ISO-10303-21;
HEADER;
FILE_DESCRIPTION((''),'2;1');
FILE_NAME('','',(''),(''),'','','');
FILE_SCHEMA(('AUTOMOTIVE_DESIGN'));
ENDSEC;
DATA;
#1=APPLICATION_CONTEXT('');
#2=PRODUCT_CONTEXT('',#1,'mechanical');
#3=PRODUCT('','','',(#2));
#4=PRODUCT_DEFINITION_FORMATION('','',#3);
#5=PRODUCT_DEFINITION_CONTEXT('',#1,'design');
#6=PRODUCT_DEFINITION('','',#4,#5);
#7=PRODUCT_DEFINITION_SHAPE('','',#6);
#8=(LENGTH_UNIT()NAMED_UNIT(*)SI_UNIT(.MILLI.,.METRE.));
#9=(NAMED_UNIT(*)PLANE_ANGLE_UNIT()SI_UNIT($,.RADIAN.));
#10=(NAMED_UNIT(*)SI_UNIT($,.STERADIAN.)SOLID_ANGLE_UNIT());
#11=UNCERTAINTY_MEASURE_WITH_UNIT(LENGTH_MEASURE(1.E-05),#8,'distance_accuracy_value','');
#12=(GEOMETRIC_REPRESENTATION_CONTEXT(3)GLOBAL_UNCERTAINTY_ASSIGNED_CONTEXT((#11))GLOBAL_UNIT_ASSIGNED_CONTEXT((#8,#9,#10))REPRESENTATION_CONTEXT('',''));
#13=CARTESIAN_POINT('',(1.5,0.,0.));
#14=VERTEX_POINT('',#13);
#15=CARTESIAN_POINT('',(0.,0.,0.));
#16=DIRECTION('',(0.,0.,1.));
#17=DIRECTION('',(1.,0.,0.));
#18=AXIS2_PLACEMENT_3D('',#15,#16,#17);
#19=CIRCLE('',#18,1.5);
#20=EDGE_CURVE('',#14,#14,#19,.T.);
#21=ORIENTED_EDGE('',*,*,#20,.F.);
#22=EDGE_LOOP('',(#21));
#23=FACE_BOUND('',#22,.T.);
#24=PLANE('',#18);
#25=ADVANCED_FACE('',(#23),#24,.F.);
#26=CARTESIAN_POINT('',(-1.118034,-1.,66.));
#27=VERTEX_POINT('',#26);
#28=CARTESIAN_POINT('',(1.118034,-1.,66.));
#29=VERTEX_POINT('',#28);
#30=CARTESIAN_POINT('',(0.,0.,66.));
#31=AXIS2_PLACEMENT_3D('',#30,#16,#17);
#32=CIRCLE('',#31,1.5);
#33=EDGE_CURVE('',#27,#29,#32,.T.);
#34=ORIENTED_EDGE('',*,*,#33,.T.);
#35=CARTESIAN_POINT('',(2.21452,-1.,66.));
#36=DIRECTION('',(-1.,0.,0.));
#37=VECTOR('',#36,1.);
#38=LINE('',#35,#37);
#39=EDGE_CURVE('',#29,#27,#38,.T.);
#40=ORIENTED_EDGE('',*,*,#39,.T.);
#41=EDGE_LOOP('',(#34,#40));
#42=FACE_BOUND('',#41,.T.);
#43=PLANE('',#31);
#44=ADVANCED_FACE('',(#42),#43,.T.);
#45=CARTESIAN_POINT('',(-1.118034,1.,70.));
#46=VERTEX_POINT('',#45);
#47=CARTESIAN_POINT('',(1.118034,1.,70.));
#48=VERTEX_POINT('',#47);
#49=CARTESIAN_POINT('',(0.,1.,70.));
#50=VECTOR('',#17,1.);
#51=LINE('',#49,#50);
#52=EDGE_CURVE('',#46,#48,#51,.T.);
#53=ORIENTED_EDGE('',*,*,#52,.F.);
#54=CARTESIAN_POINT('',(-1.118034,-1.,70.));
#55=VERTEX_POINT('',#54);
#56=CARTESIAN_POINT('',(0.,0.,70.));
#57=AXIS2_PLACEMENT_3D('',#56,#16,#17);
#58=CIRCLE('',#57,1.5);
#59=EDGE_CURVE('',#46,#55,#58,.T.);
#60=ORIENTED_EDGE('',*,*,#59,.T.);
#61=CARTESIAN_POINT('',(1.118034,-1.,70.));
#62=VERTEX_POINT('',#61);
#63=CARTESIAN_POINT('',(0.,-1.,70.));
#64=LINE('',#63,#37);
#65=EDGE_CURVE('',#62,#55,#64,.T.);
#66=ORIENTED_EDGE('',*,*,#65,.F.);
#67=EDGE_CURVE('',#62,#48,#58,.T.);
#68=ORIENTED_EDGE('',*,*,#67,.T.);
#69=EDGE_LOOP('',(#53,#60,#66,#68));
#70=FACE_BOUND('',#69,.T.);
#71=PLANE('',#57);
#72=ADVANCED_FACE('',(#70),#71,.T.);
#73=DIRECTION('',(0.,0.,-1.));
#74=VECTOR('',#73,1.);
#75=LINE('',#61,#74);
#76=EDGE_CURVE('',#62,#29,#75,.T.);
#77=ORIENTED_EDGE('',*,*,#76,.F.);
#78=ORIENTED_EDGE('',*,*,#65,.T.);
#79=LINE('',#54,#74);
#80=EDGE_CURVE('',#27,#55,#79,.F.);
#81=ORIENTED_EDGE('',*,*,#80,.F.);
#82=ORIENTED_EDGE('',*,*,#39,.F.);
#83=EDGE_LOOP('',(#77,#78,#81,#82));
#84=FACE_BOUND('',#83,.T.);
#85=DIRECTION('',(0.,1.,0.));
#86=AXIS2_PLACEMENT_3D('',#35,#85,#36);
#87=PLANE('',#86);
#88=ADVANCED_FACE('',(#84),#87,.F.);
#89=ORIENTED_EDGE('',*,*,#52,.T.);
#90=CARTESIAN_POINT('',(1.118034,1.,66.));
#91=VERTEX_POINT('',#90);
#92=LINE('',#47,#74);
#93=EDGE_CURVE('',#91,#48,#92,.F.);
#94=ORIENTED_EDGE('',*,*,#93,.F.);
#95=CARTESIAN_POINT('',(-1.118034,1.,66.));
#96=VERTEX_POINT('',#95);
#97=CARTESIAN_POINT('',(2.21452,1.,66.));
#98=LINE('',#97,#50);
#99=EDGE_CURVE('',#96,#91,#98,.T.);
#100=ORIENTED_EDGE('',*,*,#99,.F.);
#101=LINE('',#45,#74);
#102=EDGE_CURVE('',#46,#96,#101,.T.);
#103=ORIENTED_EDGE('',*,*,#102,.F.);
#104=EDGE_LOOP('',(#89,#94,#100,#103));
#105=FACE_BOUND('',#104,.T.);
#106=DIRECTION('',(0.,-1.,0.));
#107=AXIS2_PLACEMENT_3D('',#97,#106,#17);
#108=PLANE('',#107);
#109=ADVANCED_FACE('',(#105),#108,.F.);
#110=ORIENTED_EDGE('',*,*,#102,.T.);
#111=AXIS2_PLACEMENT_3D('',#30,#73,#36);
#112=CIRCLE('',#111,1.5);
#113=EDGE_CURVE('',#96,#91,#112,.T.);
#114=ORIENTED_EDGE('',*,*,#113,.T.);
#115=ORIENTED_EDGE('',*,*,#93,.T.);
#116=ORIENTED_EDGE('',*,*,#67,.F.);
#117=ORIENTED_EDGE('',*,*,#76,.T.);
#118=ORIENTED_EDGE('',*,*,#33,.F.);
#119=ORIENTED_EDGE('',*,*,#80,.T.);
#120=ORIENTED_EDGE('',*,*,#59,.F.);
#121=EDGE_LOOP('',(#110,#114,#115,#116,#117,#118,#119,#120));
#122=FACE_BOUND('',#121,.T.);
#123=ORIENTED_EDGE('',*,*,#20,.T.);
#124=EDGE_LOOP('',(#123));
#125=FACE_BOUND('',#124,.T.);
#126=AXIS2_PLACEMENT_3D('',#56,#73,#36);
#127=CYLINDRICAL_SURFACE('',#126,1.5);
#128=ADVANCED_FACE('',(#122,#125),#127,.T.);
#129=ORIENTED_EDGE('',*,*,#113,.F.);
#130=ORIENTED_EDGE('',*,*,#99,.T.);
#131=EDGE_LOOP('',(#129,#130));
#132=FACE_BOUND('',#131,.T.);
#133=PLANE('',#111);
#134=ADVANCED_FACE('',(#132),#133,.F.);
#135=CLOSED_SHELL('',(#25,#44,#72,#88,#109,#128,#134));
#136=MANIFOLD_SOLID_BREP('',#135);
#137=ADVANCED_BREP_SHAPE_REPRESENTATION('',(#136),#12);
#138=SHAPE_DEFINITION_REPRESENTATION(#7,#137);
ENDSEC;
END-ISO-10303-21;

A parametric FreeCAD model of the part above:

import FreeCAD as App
import Part
import Sketcher
Q = App.Units.Quantity

doc = App.newDocument("Part")
body = doc.addObject("PartDesign::Body", "Body")

# Sketch on XY plane
sketch1 = body.newObject("Sketcher::SketchObject", "Sketch")
sketch1.AttachmentSupport = (doc.getObject("XY_Plane"), [""])
sketch1.MapMode = "FlatFace"
sketch1.addGeometry(Part.Circle(App.Vector(0, 0, 0), App.Vector(0, 0, 1), 1.5), False)
sketch1.addConstraint([
    Sketcher.Constraint("Coincident", 0, 3, -1, 1),
    Sketcher.Constraint("Diameter", 0, Q("3 mm")),
])
pad1 = body.newObject("PartDesign::Pad", "Pad")
pad1.Profile = sketch1
pad1.Length = 70

# Sketch on XY plane
sketch2 = body.newObject("Sketcher::SketchObject", "Sketch001")
sketch2.AttachmentSupport = (doc.getObject("XY_Plane"), [""])
sketch2.MapMode = "FlatFace"
sketch2.AttachmentOffset = App.Placement(App.Vector(0, 0, 70), App.Rotation())
sketch2.addGeometry([
    Part.LineSegment(App.Vector(-1.8, -1, 0), App.Vector(-1.8, -2, 0)),  # 0
    Part.LineSegment(App.Vector(-1.8, -2, 0), App.Vector(2.2, -2, 0)),  # 1
    Part.LineSegment(App.Vector(2.2, -2, 0), App.Vector(2.2, -1, 0)),  # 2
    Part.LineSegment(App.Vector(2.2, -1, 0), App.Vector(-1.8, -1, 0)),  # 3
    Part.LineSegment(App.Vector(-1.8, 2, 0), App.Vector(-1.8, 1, 0)),  # 4
    Part.LineSegment(App.Vector(-1.8, 1, 0), App.Vector(2.2, 1, 0)),  # 5
    Part.LineSegment(App.Vector(2.2, 1, 0), App.Vector(2.2, 2, 0)),  # 6
    Part.LineSegment(App.Vector(2.2, 2, 0), App.Vector(-1.8, 2, 0)),  # 7
], False)
sketch2.addConstraint([
    Sketcher.Constraint("Coincident", 0, 2, 1, 1),
    Sketcher.Constraint("Coincident", 1, 2, 2, 1),
    Sketcher.Constraint("Coincident", 2, 2, 3, 1),
    Sketcher.Constraint("Coincident", 3, 2, 0, 1),
    Sketcher.Constraint("Coincident", 4, 2, 5, 1),
    Sketcher.Constraint("Coincident", 5, 2, 6, 1),
    Sketcher.Constraint("Coincident", 6, 2, 7, 1),
    Sketcher.Constraint("Coincident", 7, 2, 4, 1),
    Sketcher.Constraint("Vertical", 0),
    Sketcher.Constraint("Horizontal", 1),
    Sketcher.Constraint("Vertical", 2),
    Sketcher.Constraint("Horizontal", 3),
    Sketcher.Constraint("Vertical", 4),
    Sketcher.Constraint("Horizontal", 5),
    Sketcher.Constraint("Vertical", 6),
    Sketcher.Constraint("Horizontal", 7),
    Sketcher.Constraint("Symmetric", 3, 2, 4, 2, -1),
    Sketcher.Constraint("Symmetric", 1, 2, 6, 2, -1),
    Sketcher.Constraint("DistanceX", 1, 1, 1, 2, Q("4 mm")),
    Sketcher.Constraint("DistanceY", 0, 2, 0, 1, Q("1 mm")),
    Sketcher.Constraint("DistanceY", 0, 2, -1, 1, Q("2 mm")),
    Sketcher.Constraint("DistanceX", 0, 2, -1, 1, Q("1.78548 mm")),
])
pocket1 = body.newObject("PartDesign::Pocket", "Pocket")
pocket1.Profile = sketch2
pocket1.Length = 4

doc.recompute()
